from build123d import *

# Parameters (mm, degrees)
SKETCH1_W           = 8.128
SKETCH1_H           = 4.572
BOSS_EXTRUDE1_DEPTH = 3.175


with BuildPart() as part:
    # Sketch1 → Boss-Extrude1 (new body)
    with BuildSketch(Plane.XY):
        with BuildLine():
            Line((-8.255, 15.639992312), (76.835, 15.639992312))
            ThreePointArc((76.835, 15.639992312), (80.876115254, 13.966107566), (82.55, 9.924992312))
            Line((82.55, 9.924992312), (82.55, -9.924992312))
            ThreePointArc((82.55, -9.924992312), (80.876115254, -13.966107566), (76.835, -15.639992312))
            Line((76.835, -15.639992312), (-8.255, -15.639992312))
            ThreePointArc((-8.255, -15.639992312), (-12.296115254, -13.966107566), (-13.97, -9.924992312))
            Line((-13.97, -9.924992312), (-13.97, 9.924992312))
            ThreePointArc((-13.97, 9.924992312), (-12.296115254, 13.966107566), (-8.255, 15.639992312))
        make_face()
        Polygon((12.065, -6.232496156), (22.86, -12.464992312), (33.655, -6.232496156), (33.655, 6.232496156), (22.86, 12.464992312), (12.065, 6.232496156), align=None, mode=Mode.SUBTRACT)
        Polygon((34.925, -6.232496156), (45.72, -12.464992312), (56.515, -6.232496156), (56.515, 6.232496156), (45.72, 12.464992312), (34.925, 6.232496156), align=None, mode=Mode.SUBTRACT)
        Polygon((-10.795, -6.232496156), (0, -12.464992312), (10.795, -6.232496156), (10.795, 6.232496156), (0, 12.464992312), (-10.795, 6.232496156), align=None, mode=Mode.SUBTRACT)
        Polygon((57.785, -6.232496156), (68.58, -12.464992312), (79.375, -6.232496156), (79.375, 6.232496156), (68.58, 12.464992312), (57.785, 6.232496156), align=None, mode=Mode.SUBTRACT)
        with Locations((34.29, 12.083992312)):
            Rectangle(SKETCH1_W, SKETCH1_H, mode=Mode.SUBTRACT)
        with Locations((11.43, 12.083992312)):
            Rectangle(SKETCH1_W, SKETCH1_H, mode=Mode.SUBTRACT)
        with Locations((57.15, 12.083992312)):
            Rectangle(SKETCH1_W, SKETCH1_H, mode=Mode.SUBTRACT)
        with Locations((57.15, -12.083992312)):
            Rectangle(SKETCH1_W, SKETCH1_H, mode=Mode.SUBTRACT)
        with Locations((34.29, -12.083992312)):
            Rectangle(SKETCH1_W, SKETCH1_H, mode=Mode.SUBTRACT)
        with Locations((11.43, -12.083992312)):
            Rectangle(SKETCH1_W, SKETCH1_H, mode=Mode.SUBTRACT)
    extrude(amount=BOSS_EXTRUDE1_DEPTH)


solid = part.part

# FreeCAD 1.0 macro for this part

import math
import FreeCAD as App
import Part
import Sketcher
Q = App.Units.Quantity

doc = App.newDocument("Part")
body = doc.addObject("PartDesign::Body", "Body")

# Sketch on XY plane
sketch1 = body.newObject("Sketcher::SketchObject", "Sketch")
sketch1.AttachmentSupport = (doc.getObject("XY_Plane"), [""])
sketch1.MapMode = "FlatFace"
sketch1.addGeometry([
    Part.LineSegment(App.Vector(76.8, 15.6, 0), App.Vector(-8.3, 15.6, 0)),  # 0
    Part.ArcOfCircle(Part.Circle(App.Vector(-8.3, 9.9, 0), App.Vector(0, 0, 1), 5.7), math.radians(90), math.radians(180)),  # 1
    Part.LineSegment(App.Vector(-14, 9.9, 0), App.Vector(-14, -9.9, 0)),  # 2
    Part.ArcOfCircle(Part.Circle(App.Vector(-8.3, -9.9, 0), App.Vector(0, 0, 1), 5.7), math.radians(-180), math.radians(-90)),  # 3
    Part.LineSegment(App.Vector(-8.3, -15.6, 0), App.Vector(76.8, -15.6, 0)),  # 4
    Part.ArcOfCircle(Part.Circle(App.Vector(76.8, -9.9, 0), App.Vector(0, 0, 1), 5.7), math.radians(-90), math.radians(0)),  # 5
    Part.LineSegment(App.Vector(82.5, -9.9, 0), App.Vector(82.5, 9.9, 0)),  # 6
    Part.ArcOfCircle(Part.Circle(App.Vector(76.8, 9.9, 0), App.Vector(0, 0, 1), 5.7), math.radians(0), math.radians(90)),  # 7
    Part.LineSegment(App.Vector(53.1, -14.4, 0), App.Vector(53.1, -9.8, 0)),  # 8
    Part.LineSegment(App.Vector(53.1, -9.8, 0), App.Vector(61.2, -9.8, 0)),  # 9
    Part.LineSegment(App.Vector(61.2, -9.8, 0), App.Vector(61.2, -14.4, 0)),  # 10
    Part.LineSegment(App.Vector(61.2, -14.4, 0), App.Vector(53.1, -14.4, 0)),  # 11
    Part.LineSegment(App.Vector(30.2, -14.4, 0), App.Vector(30.2, -9.8, 0)),  # 12
    Part.LineSegment(App.Vector(30.2, -9.8, 0), App.Vector(38.4, -9.8, 0)),  # 13
    Part.LineSegment(App.Vector(38.4, -9.8, 0), App.Vector(38.4, -14.4, 0)),  # 14
    Part.LineSegment(App.Vector(38.4, -14.4, 0), App.Vector(30.2, -14.4, 0)),  # 15
    Part.LineSegment(App.Vector(7.4, -14.4, 0), App.Vector(7.4, -9.8, 0)),  # 16
    Part.LineSegment(App.Vector(7.4, -9.8, 0), App.Vector(15.5, -9.8, 0)),  # 17
    Part.LineSegment(App.Vector(15.5, -9.8, 0), App.Vector(15.5, -14.4, 0)),  # 18
    Part.LineSegment(App.Vector(15.5, -14.4, 0), App.Vector(7.4, -14.4, 0)),  # 19
    Part.LineSegment(App.Vector(57.8, -6.2, 0), App.Vector(57.8, 6.2, 0)),  # 20
    Part.LineSegment(App.Vector(57.8, 6.2, 0), App.Vector(68.6, 12.5, 0)),  # 21
    Part.LineSegment(App.Vector(68.6, 12.5, 0), App.Vector(79.4, 6.2, 0)),  # 22
    Part.LineSegment(App.Vector(79.4, 6.2, 0), App.Vector(79.4, -6.2, 0)),  # 23
    Part.LineSegment(App.Vector(79.4, -6.2, 0), App.Vector(68.6, -12.5, 0)),  # 24
    Part.LineSegment(App.Vector(68.6, -12.5, 0), App.Vector(57.8, -6.2, 0)),  # 25
    Part.LineSegment(App.Vector(34.9, -6.2, 0), App.Vector(34.9, 6.2, 0)),  # 26
    Part.LineSegment(App.Vector(34.9, 6.2, 0), App.Vector(45.7, 12.5, 0)),  # 27
    Part.LineSegment(App.Vector(45.7, 12.5, 0), App.Vector(56.5, 6.2, 0)),  # 28
    Part.LineSegment(App.Vector(56.5, 6.2, 0), App.Vector(56.5, -6.2, 0)),  # 29
    Part.LineSegment(App.Vector(56.5, -6.2, 0), App.Vector(45.7, -12.5, 0)),  # 30
    Part.LineSegment(App.Vector(45.7, -12.5, 0), App.Vector(34.9, -6.2, 0)),  # 31
    Part.LineSegment(App.Vector(53.1, 9.8, 0), App.Vector(53.1, 14.4, 0)),  # 32
    Part.LineSegment(App.Vector(53.1, 14.4, 0), App.Vector(61.2, 14.4, 0)),  # 33
    Part.LineSegment(App.Vector(61.2, 14.4, 0), App.Vector(61.2, 9.8, 0)),  # 34
    Part.LineSegment(App.Vector(61.2, 9.8, 0), App.Vector(53.1, 9.8, 0)),  # 35
    Part.LineSegment(App.Vector(12.1, -6.2, 0), App.Vector(12.1, 6.2, 0)),  # 36
    Part.LineSegment(App.Vector(12.1, 6.2, 0), App.Vector(22.9, 12.5, 0)),  # 37
    Part.LineSegment(App.Vector(22.9, 12.5, 0), App.Vector(33.7, 6.2, 0)),  # 38
    Part.LineSegment(App.Vector(33.7, 6.2, 0), App.Vector(33.7, -6.2, 0)),  # 39
    Part.LineSegment(App.Vector(33.7, -6.2, 0), App.Vector(22.9, -12.5, 0)),  # 40
    Part.LineSegment(App.Vector(22.9, -12.5, 0), App.Vector(12.1, -6.2, 0)),  # 41
    Part.LineSegment(App.Vector(-10.8, -6.2, 0), App.Vector(-10.8, 6.2, 0)),  # 42
    Part.LineSegment(App.Vector(-10.8, 6.2, 0), App.Vector(0, 12.5, 0)),  # 43
    Part.LineSegment(App.Vector(0, 12.5, 0), App.Vector(10.8, 6.2, 0)),  # 44
    Part.LineSegment(App.Vector(10.8, 6.2, 0), App.Vector(10.8, -6.2, 0)),  # 45
    Part.LineSegment(App.Vector(10.8, -6.2, 0), App.Vector(0, -12.5, 0)),  # 46
    Part.LineSegment(App.Vector(0, -12.5, 0), App.Vector(-10.8, -6.2, 0)),  # 47
    Part.LineSegment(App.Vector(30.2, 9.8, 0), App.Vector(30.2, 14.4, 0)),  # 48
    Part.LineSegment(App.Vector(30.2, 14.4, 0), App.Vector(38.4, 14.4, 0)),  # 49
    Part.LineSegment(App.Vector(38.4, 14.4, 0), App.Vector(38.4, 9.8, 0)),  # 50
    Part.LineSegment(App.Vector(38.4, 9.8, 0), App.Vector(30.2, 9.8, 0)),  # 51
    Part.LineSegment(App.Vector(7.4, 9.8, 0), App.Vector(7.4, 14.4, 0)),  # 52
    Part.LineSegment(App.Vector(7.4, 14.4, 0), App.Vector(15.5, 14.4, 0)),  # 53
    Part.LineSegment(App.Vector(15.5, 14.4, 0), App.Vector(15.5, 9.8, 0)),  # 54
    Part.LineSegment(App.Vector(15.5, 9.8, 0), App.Vector(7.4, 9.8, 0)),  # 55
], False)
sketch1.addConstraint([
    Sketcher.Constraint("Tangent", 0, 2, 1, 1),
    Sketcher.Constraint("Tangent", 1, 2, 2, 1),
    Sketcher.Constraint("Tangent", 2, 2, 3, 1),
    Sketcher.Constraint("Tangent", 3, 2, 4, 1),
    Sketcher.Constraint("Tangent", 4, 2, 5, 1),
    Sketcher.Constraint("Tangent", 5, 2, 6, 1),
    Sketcher.Constraint("Tangent", 6, 2, 7, 1),
    Sketcher.Constraint("Tangent", 7, 2, 0, 1),
    Sketcher.Constraint("Coincident", 8, 2, 9, 1),
    Sketcher.Constraint("Coincident", 9, 2, 10, 1),
    Sketcher.Constraint("Coincident", 10, 2, 11, 1),
    Sketcher.Constraint("Coincident", 11, 2, 8, 1),
    Sketcher.Constraint("Coincident", 12, 2, 13, 1),
    Sketcher.Constraint("Coincident", 13, 2, 14, 1),
    Sketcher.Constraint("Coincident", 14, 2, 15, 1),
    Sketcher.Constraint("Coincident", 15, 2, 12, 1),
    Sketcher.Constraint("Coincident", 16, 2, 17, 1),
    Sketcher.Constraint("Coincident", 17, 2, 18, 1),
    Sketcher.Constraint("Coincident", 18, 2, 19, 1),
    Sketcher.Constraint("Coincident", 19, 2, 16, 1),
    Sketcher.Constraint("Coincident", 20, 2, 21, 1),
    Sketcher.Constraint("Coincident", 21, 2, 22, 1),
    Sketcher.Constraint("Coincident", 22, 2, 23, 1),
    Sketcher.Constraint("Coincident", 23, 2, 24, 1),
    Sketcher.Constraint("Coincident", 24, 2, 25, 1),
    Sketcher.Constraint("Coincident", 25, 2, 20, 1),
    Sketcher.Constraint("Coincident", 26, 2, 27, 1),
    Sketcher.Constraint("Coincident", 27, 2, 28, 1),
    Sketcher.Constraint("Coincident", 28, 2, 29, 1),
    Sketcher.Constraint("Coincident", 29, 2, 30, 1),
    Sketcher.Constraint("Coincident", 30, 2, 31, 1),
    Sketcher.Constraint("Coincident", 31, 2, 26, 1),
    Sketcher.Constraint("Coincident", 32, 2, 33, 1),
    Sketcher.Constraint("Coincident", 33, 2, 34, 1),
    Sketcher.Constraint("Coincident", 34, 2, 35, 1),
    Sketcher.Constraint("Coincident", 35, 2, 32, 1),
    Sketcher.Constraint("Coincident", 36, 2, 37, 1),
    Sketcher.Constraint("Coincident", 37, 2, 38, 1),
    Sketcher.Constraint("Coincident", 38, 2, 39, 1),
    Sketcher.Constraint("Coincident", 39, 2, 40, 1),
    Sketcher.Constraint("Coincident", 40, 2, 41, 1),
    Sketcher.Constraint("Coincident", 41, 2, 36, 1),
    Sketcher.Constraint("Coincident", 42, 2, 43, 1),
    Sketcher.Constraint("Coincident", 43, 2, 44, 1),
    Sketcher.Constraint("Coincident", 44, 2, 45, 1),
    Sketcher.Constraint("Coincident", 45, 2, 46, 1),
    Sketcher.Constraint("Coincident", 46, 2, 47, 1),
    Sketcher.Constraint("Coincident", 47, 2, 42, 1),
    Sketcher.Constraint("Coincident", 48, 2, 49, 1),
    Sketcher.Constraint("Coincident", 49, 2, 50, 1),
    Sketcher.Constraint("Coincident", 50, 2, 51, 1),
    Sketcher.Constraint("Coincident", 51, 2, 48, 1),
    Sketcher.Constraint("Coincident", 52, 2, 53, 1),
    Sketcher.Constraint("Coincident", 53, 2, 54, 1),
    Sketcher.Constraint("Coincident", 54, 2, 55, 1),
    Sketcher.Constraint("Coincident", 55, 2, 52, 1),
    Sketcher.Constraint("Horizontal", 0),
    Sketcher.Constraint("Vertical", 2),
    Sketcher.Constraint("Horizontal", 4),
    Sketcher.Constraint("Vertical", 6),
    Sketcher.Constraint("Vertical", 8),
    Sketcher.Constraint("Horizontal", 9),
    Sketcher.Constraint("Vertical", 10),
    Sketcher.Constraint("Horizontal", 11),
    Sketcher.Constraint("Vertical", 12),
    Sketcher.Constraint("Horizontal", 13),
    Sketcher.Constraint("Vertical", 14),
    Sketcher.Constraint("Horizontal", 15),
    Sketcher.Constraint("Vertical", 16),
    Sketcher.Constraint("Horizontal", 17),
    Sketcher.Constraint("Vertical", 18),
    Sketcher.Constraint("Horizontal", 19),
    Sketcher.Constraint("Vertical", 20),
    Sketcher.Constraint("Vertical", 23),
    Sketcher.Constraint("Vertical", 26),
    Sketcher.Constraint("Vertical", 29),
    Sketcher.Constraint("Vertical", 32),
    Sketcher.Constraint("Horizontal", 33),
    Sketcher.Constraint("Vertical", 34),
    Sketcher.Constraint("Horizontal", 35),
    Sketcher.Constraint("Vertical", 36),
    Sketcher.Constraint("Vertical", 39),
    Sketcher.Constraint("Vertical", 42),
    Sketcher.Constraint("Vertical", 45),
    Sketcher.Constraint("Vertical", 48),
    Sketcher.Constraint("Horizontal", 49),
    Sketcher.Constraint("Vertical", 50),
    Sketcher.Constraint("Horizontal", 51),
    Sketcher.Constraint("Vertical", 52),
    Sketcher.Constraint("Horizontal", 53),
    Sketcher.Constraint("Vertical", 54),
    Sketcher.Constraint("Horizontal", 55),
    Sketcher.Constraint("Equal", 1, 3),
    Sketcher.Constraint("Equal", 3, 5),
    Sketcher.Constraint("Equal", 5, 7),
    Sketcher.Constraint("Symmetric", 42, 2, 45, 2, -1, 1),
    Sketcher.Constraint("Symmetric", 43, 2, 46, 2, -1, 1),
    Sketcher.Constraint("Symmetric", 21, 2, 24, 2, -1),
    Sketcher.Constraint("Symmetric", 27, 2, 30, 2, -1),
    Sketcher.Constraint("Symmetric", 11, 2, 32, 2, -1),
    Sketcher.Constraint("Symmetric", 9, 2, 34, 2, -1),
    Sketcher.Constraint("Symmetric", 37, 2, 40, 2, -1),
    Sketcher.Constraint("Symmetric", 15, 2, 48, 2, -1),
    Sketcher.Constraint("Symmetric", 13, 2, 50, 2, -1),
    Sketcher.Constraint("Symmetric", 19, 2, 52, 2, -1),
    Sketcher.Constraint("Symmetric", 17, 2, 54, 2, -1),
    Sketcher.Constraint("PointOnObject", 43, 2, -2),
    Sketcher.Constraint("Parallel", 21, 24),
    Sketcher.Constraint("Parallel", 22, 25),
    Sketcher.Constraint("Parallel", 24, 27),
    Sketcher.Constraint("Parallel", 25, 28),
    Sketcher.Constraint("Parallel", 27, 30),
    Sketcher.Constraint("Parallel", 28, 31),
    Sketcher.Constraint("Parallel", 30, 37),
    Sketcher.Constraint("Parallel", 31, 38),
    Sketcher.Constraint("Parallel", 37, 40),
    Sketcher.Constraint("Parallel", 38, 41),
    Sketcher.Constraint("Parallel", 40, 43),
    Sketcher.Constraint("Parallel", 41, 44),
    Sketcher.Constraint("Parallel", 44, 47),
    Sketcher.Constraint("Horizontal", 9, 2, 12, 2),
    Sketcher.Constraint("Horizontal", 11, 2, 14, 2),
    Sketcher.Constraint("Horizontal", 13, 2, 16, 2),
    Sketcher.Constraint("Horizontal", 15, 2, 18, 2),
    Sketcher.Constraint("Horizontal", 20, 2, 22, 2),
    Sketcher.Constraint("Horizontal", 23, 2, 25, 2),
    Sketcher.Constraint("Horizontal", 22, 2, 26, 2),
    Sketcher.Constraint("Horizontal", 21, 2, 27, 2),
    Sketcher.Constraint("Horizontal", 26, 2, 28, 2),
    Sketcher.Constraint("Horizontal", 28, 2, 36, 2),
    Sketcher.Constraint("Horizontal", 27, 2, 37, 2),
    Sketcher.Constraint("Horizontal", 36, 2, 38, 2),
    Sketcher.Constraint("Horizontal", 38, 2, 42, 2),
    Sketcher.Constraint("Horizontal", 37, 2, 43, 2),
    Sketcher.Constraint("Equal", 11, 13),
    Sketcher.Constraint("Equal", 15, 17),
    Sketcher.Constraint("Angle", 21, Q("30 deg")),
    Sketcher.Constraint("Radius", 1, Q("0.225 in")),
    Sketcher.Constraint("DistanceX", 0, 2, 0, 1, Q("3.35 in")),
    Sketcher.Constraint("DistanceX", 9, 1, 9, 2, Q("0.32 in")),
    Sketcher.Constraint("DistanceY", 8, 1, 8, 2, Q("0.18 in")),
    Sketcher.Constraint("DistanceX", -1, 1, 21, 2, Q("2.7 in")),
    Sketcher.Constraint("DistanceX", -1, 1, 27, 2, Q("1.8 in")),
    Sketcher.Constraint("DistanceX", -1, 1, 37, 2, Q("0.9 in")),
    Sketcher.Constraint("DistanceX", 12, 2, 8, 2, Q("0.9 in")),
    Sketcher.Constraint("DistanceX", 16, 2, 12, 2, Q("0.9 in")),
    Sketcher.Constraint("DistanceY", 7, 3, 21, 2, Q("0.1 in")),
    Sketcher.Constraint("DistanceX", 7, 3, 22, 2, Q("0.1 in")),
    Sketcher.Constraint("DistanceY", 24, 2, 5, 3, Q("0.1 in")),
    Sketcher.Constraint("DistanceX", 1, 3, 36, 2, Q("0.8 in")),
    Sketcher.Constraint("DistanceX", -1, 1, 8, 2, Q("2.09 in")),
    Sketcher.Constraint("DistanceY", 4, 2, 8, 2, Q("0.23 in")),
    Sketcher.Constraint("DistanceY", 2, 2, 2, 1, 19.849985),
])
pad1 = body.newObject("PartDesign::Pad", "Pad")
pad1.Profile = sketch1
pad1.Length = Q("0.125 in")

doc.recompute()
